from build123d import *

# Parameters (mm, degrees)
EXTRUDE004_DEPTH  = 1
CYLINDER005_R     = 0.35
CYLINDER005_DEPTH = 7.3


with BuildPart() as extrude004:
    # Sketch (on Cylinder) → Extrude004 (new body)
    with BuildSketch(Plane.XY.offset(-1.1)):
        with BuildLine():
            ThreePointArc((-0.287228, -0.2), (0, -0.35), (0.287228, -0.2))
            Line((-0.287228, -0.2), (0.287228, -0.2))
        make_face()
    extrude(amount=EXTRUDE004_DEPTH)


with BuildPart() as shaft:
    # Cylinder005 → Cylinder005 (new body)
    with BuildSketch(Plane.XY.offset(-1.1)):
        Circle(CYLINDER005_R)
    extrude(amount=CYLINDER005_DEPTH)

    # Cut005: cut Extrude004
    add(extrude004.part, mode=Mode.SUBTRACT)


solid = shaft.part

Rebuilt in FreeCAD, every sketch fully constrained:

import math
import FreeCAD as App
import Part
import Sketcher
Q = App.Units.Quantity

doc = App.newDocument("Part")
body = doc.addObject("PartDesign::Body", "Body")

# Sketch on XY plane
sketch1 = doc.addObject("Sketcher::SketchObject", "Sketch")
body.addObject(sketch1)
sketch1.AttachmentSupport = (doc.XY_Plane, [""])
sketch1.MapMode = "FlatFace"
sketch1.AttachmentOffset = App.Placement(App.Vector(0, 0, -1.1), App.Rotation())
sketch1.addGeometry(Part.ArcOfCircle(Part.Circle(App.Vector(0, 0, 0), App.Vector(0, 0, 1), 0.35), math.radians(-145), math.radians(-35)), False)
sketch1.addGeometry(Part.LineSegment(App.Vector(0.29, -0.2, 0), App.Vector(-0.29, -0.2, 0)), False)
sketch1.addConstraint(Sketcher.Constraint("Coincident", 0, 1, 1, 2))
sketch1.addConstraint(Sketcher.Constraint("Coincident", 1, 1, 0, 2))
sketch1.addConstraint(Sketcher.Constraint("Horizontal", 1))
sketch1.addConstraint(Sketcher.Constraint("Coincident", 0, 3, -1, 1))
sketch1.addConstraint(Sketcher.Constraint("Radius", 0, Q("0.35 mm")))
sketch1.addConstraint(Sketcher.Constraint("DistanceY", 0, 1, -1, 1, Q("0.2 mm")))
pad1 = doc.addObject("PartDesign::Pad", "Pad")
body.addObject(pad1)
pad1.Profile = sketch1
pad1.Length = 1
body2 = doc.addObject("PartDesign::Body", "Body001")

# Sketch on XY plane
sketch2 = doc.addObject("Sketcher::SketchObject", "Sketch001")
body2.addObject(sketch2)
sketch2.AttachmentSupport = (doc.getObject("XY_Plane001"), [""])
sketch2.MapMode = "FlatFace"
sketch2.AttachmentOffset = App.Placement(App.Vector(0, 0, -1.1), App.Rotation())
sketch2.addGeometry(Part.Circle(App.Vector(0, 0, 0), App.Vector(0, 0, 1), 0.35), False)
sketch2.addConstraint(Sketcher.Constraint("Coincident", 0, 3, -1, 1))
sketch2.addConstraint(Sketcher.Constraint("Diameter", 0, Q("0.7 mm")))
pad2 = doc.addObject("PartDesign::Pad", "Pad001")
body2.addObject(pad2)
pad2.Profile = sketch2
pad2.Length = 7.3
doc.recompute()

boolean = doc.addObject("PartDesign::Boolean", "Boolean")
body2.addObject(boolean)
boolean.Type = "Cut"
boolean.addObjects([body])

doc.recompute()
